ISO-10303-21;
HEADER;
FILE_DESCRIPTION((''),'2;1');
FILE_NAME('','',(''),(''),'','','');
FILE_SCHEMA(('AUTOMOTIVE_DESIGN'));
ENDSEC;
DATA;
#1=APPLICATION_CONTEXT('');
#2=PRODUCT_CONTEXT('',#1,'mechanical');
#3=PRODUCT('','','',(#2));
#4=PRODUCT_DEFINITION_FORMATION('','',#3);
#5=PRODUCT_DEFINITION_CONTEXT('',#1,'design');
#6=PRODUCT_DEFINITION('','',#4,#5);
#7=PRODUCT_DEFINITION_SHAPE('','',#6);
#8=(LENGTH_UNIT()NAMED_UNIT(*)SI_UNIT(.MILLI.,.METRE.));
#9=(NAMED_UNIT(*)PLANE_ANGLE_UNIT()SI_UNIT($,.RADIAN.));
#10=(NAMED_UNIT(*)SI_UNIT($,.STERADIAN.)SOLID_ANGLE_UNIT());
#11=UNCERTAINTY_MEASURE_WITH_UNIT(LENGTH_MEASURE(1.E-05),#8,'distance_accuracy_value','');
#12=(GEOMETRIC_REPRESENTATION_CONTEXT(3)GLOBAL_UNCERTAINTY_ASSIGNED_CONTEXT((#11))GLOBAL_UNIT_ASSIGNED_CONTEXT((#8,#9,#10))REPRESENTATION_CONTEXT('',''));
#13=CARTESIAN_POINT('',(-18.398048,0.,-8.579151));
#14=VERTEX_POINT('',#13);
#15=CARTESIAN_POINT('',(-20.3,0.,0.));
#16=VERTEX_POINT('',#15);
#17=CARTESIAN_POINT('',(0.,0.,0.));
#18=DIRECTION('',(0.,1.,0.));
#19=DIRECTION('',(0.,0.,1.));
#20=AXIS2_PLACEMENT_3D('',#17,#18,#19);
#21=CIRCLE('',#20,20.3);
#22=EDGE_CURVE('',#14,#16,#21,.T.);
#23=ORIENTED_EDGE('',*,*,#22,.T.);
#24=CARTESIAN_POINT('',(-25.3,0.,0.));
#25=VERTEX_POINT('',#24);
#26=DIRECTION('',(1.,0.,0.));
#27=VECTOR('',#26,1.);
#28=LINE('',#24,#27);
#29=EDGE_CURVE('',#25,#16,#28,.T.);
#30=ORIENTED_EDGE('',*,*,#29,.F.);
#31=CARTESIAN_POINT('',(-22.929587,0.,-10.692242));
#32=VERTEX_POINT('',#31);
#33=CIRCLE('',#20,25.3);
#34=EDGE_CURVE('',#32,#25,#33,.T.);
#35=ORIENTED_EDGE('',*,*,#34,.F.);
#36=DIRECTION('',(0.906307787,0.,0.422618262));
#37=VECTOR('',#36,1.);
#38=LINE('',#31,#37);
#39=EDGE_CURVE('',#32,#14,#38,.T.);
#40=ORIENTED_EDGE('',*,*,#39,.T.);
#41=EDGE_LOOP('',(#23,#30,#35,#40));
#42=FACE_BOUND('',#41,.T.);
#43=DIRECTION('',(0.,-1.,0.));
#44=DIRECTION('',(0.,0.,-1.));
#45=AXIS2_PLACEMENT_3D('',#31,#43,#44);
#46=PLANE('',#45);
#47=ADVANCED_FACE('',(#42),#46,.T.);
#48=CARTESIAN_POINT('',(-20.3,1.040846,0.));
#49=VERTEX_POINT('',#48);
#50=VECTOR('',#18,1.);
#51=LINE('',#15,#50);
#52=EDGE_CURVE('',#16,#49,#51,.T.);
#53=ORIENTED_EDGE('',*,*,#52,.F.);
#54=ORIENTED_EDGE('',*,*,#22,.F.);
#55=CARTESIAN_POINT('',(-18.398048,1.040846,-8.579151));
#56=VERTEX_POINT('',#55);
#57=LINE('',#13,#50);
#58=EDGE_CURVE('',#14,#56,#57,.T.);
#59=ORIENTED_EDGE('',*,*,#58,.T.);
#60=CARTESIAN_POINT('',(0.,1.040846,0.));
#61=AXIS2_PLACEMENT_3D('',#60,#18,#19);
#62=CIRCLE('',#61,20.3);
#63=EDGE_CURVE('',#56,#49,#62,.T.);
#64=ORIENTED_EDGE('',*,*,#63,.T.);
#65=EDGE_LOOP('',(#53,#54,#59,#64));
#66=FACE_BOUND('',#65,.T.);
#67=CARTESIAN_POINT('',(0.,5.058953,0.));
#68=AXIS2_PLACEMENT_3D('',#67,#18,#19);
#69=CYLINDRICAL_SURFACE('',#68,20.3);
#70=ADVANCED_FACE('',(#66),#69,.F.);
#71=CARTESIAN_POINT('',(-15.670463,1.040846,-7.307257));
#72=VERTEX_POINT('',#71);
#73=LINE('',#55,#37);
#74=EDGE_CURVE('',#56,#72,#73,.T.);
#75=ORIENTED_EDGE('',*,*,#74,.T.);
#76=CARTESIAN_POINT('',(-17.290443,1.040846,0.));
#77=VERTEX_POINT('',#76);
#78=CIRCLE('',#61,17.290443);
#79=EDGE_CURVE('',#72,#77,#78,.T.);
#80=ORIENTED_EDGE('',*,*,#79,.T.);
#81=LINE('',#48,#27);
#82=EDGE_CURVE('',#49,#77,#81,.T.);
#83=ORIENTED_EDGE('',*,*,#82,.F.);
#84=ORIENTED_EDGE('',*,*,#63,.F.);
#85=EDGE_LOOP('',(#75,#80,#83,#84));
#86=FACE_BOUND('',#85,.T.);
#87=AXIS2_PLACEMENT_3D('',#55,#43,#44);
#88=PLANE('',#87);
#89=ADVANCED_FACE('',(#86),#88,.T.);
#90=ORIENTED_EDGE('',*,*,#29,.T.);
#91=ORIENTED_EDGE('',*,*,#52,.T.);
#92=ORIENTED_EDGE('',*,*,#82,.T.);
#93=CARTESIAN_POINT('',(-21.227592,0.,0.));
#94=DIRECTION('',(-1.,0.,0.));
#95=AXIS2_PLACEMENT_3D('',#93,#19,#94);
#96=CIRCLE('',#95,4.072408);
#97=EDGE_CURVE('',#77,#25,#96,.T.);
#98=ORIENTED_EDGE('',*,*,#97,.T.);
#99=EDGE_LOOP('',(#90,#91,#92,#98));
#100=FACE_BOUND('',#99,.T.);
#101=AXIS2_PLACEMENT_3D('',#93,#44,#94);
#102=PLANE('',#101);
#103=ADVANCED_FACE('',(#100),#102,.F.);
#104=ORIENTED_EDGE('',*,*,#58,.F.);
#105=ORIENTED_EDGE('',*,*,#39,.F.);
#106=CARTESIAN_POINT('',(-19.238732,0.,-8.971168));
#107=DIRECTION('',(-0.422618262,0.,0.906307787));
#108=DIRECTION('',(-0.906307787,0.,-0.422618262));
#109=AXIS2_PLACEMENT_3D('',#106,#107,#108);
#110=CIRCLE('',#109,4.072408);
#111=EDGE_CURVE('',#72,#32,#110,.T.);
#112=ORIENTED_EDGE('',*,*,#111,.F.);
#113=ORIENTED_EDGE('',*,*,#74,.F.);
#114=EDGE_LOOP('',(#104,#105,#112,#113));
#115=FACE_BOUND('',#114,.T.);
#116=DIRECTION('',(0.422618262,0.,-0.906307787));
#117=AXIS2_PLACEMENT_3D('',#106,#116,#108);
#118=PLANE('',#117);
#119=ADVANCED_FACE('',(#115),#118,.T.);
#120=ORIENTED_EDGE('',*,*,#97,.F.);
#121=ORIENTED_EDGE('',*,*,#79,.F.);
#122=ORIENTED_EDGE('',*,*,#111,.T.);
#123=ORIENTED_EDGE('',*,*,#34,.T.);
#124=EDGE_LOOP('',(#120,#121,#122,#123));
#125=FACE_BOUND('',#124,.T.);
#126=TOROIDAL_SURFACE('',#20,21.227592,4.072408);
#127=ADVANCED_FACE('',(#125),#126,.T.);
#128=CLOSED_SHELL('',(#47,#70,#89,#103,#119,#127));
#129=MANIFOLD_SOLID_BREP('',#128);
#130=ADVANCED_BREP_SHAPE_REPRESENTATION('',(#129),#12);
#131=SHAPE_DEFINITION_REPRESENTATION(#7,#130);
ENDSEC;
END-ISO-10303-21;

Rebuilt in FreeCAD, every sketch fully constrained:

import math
import FreeCAD as App
import Part
import Sketcher
from FreeCAD import Vector
Q = App.Units.Quantity

doc = App.newDocument("Part")
params = doc.addObject("Spreadsheet::Sheet", "Params")
for row, (alias, value) in enumerate([
    ("sketch1_width", "5 mm"),
    ("revolution_angle", "25 deg"),
], start=1):
    params.set(f"A{row}", alias)
    params.set(f"B{row}", "=" + value)
    params.setAlias(f"B{row}", alias)

body = doc.addObject("PartDesign::Body", "Body")

# Sketch on XY plane
sketch1 = body.newObject("Sketcher::SketchObject", "Sketch")
sketch1.AttachmentSupport = (doc.getObject("XY_Plane"), [""])
sketch1.MapMode = "FlatFace"
sketch1.addGeometry(Part.LineSegment(Vector(-25.3, 0, 0), Vector(-20.3, 0, 0)), False)
sketch1.addGeometry(Part.LineSegment(Vector(-20.3, 0, 0), Vector(-20.3, 1.040846, 0)), False)
sketch1.addGeometry(Part.LineSegment(Vector(-20.3, 1.040846, 0), Vector(-17.290443, 1.040846, 0)), False)
sketch1.addGeometry(Part.ArcOfCircle(Part.Circle(Vector(-21.227592, 0, 0), Vector(0, 0, 1), 4.072408), math.radians(14.808247), math.radians(180)), False)
sketch1.addConstraint(Sketcher.Constraint("Coincident", 0, 2, 1, 1))
sketch1.addConstraint(Sketcher.Constraint("Coincident", 1, 2, 2, 1))
sketch1.addConstraint(Sketcher.Constraint("Coincident", 2, 2, 3, 1))
sketch1.addConstraint(Sketcher.Constraint("Coincident", 3, 2, 0, 1))
sketch1.addConstraint(Sketcher.Constraint("Horizontal", 0))
sketch1.addConstraint(Sketcher.Constraint("Vertical", 1))
sketch1.addConstraint(Sketcher.Constraint("Horizontal", 2))
sketch1.addConstraint(Sketcher.Constraint("PointOnObject", 3, 3, -1))
sketch1.addConstraint(Sketcher.Constraint("PointOnObject", 0, 2, -1))
sketch1.addConstraint(Sketcher.Constraint("DistanceX", 0, 1, 0, 2, Q("5 mm")))
sketch1.addConstraint(Sketcher.Constraint("DistanceX", 0, 2, -1, 1, Q("20.3 mm")))
sketch1.addConstraint(Sketcher.Constraint("Radius", 3, Q("4.072408 mm")))
sketch1.addConstraint(Sketcher.Constraint("DistanceX", 2, 1, 2, 2, Q("3.009557 mm")))
sketch1.setExpression("Constraints[9]", "Params.sketch1_width")
revolution = body.newObject("PartDesign::Revolution", "Revolution")
revolution.Profile = sketch1
revolution.ReferenceAxis = (sketch1, ["V_Axis"])
revolution.setExpression("Angle", "Params.revolution_angle")
revolution.Reversed = True

doc.recompute()
